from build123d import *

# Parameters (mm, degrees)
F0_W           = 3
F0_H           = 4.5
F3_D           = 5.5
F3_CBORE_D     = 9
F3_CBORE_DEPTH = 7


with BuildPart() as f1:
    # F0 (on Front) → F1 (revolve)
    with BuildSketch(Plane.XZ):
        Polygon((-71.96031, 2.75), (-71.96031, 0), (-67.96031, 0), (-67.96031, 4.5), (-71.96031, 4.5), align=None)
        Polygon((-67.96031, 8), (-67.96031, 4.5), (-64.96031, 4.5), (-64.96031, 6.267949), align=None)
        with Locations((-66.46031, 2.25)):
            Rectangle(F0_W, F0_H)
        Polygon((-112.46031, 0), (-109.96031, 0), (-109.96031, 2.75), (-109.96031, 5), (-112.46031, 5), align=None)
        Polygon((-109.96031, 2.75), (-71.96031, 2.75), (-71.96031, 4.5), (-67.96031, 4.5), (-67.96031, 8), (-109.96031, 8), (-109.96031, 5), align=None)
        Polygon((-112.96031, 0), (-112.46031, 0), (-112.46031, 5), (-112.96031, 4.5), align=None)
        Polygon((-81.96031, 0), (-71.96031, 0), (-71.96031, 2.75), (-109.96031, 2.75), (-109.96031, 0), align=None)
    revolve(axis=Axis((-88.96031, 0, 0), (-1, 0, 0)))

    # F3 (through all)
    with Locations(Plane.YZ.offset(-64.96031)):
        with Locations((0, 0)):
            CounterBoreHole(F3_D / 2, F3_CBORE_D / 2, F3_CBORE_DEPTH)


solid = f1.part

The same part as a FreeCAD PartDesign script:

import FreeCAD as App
import Part
import Sketcher

V = App.Vector
Q = App.Units.Quantity


def add_polygon(sketch, points):
    """Adds a closed chain of lines whose ends are joined by coincident constraints."""
    first, n = sketch.GeometryCount, len(points)
    for a, b in zip(points, points[1:] + points[:1]):
        sketch.addGeometry(Part.LineSegment(App.Vector(*a, 0), App.Vector(*b, 0)), False)
    for i in range(n):
        sketch.addConstraint(Sketcher.Constraint("Coincident", first + i, 2, first + (i + 1) % n, 1))

doc = App.newDocument("Part")
params = doc.addObject("Spreadsheet::Sheet", "Params")
for row, (alias, value) in enumerate([
    ("sketch1_width", "42 mm"),
    ("sketch1_width2", "48 mm"),
    ("sketch1_height", "3 mm"),
    ("sketch1_width3", "2.5 mm"),
    ("sketch1_height2", "4.5 mm"),
    ("revolution_angle", "360 deg"),
    ("sketch2_diameter", "5.5 mm"),
    ("hole_diameter", "5.5 mm"),
    ("hole_cbore_diameter", "9 mm"),
    ("hole_cbore_depth", "7 mm"),
], start=1):
    params.set(f"A{row}", alias)
    params.set(f"B{row}", "=" + value)
    params.setAlias(f"B{row}", alias)

body = doc.addObject("PartDesign::Body", "Body")

sketch1 = doc.addObject("Sketcher::SketchObject", "Sketch")
body.addObject(sketch1)
sketch1.AttachmentSupport = (doc.XZ_Plane, [""])
sketch1.MapMode = "FlatFace"
add_polygon(sketch1, [(-65, 0), (-65, 6.3), (-68, 8), (-110, 8), (-110, 5), (-112.5, 5), (-113, 4.5), (-113, 0)])
sketch1.addConstraint([
    Sketcher.Constraint("Vertical", 0),
    Sketcher.Constraint("Horizontal", 2),
    Sketcher.Constraint("Vertical", 3),
    Sketcher.Constraint("Horizontal", 4),
    Sketcher.Constraint("Vertical", 6),
    Sketcher.Constraint("Horizontal", 7),
    Sketcher.Constraint("PointOnObject", 6, 2, -1),
    Sketcher.Constraint("DistanceX", 2, 2, 2, 1, 42.0),
    Sketcher.Constraint("DistanceX", 7, 1, 7, 2, 48.0),
    Sketcher.Constraint("DistanceY", 3, 2, 3, 1, 3.0),
    Sketcher.Constraint("Angle", 1, Q("149.999997 deg")),
    Sketcher.Constraint("Angle", 5, Q("-135 deg")),
    Sketcher.Constraint("DistanceX", 4, 2, 4, 1, 2.5),
    Sketcher.Constraint("DistanceY", 6, 2, 6, 1, 4.5),
    Sketcher.Constraint("DistanceY", -1, 1, 1, 2, 8.0),
    Sketcher.Constraint("DistanceX", 0, 2, -1, 1, 64.96031),
])
sketch1.setExpression("Constraints[15]", "Params.sketch1_width")
sketch1.setExpression("Constraints[16]", "Params.sketch1_width2")
sketch1.setExpression("Constraints[17]", "Params.sketch1_height")
sketch1.setExpression("Constraints[20]", "Params.sketch1_width3")
sketch1.setExpression("Constraints[21]", "Params.sketch1_height2")
revolution = doc.addObject("PartDesign::Revolution", "Revolution")
body.addObject(revolution)
revolution.Profile = sketch1
revolution.ReferenceAxis = (sketch1, ["H_Axis"])
revolution.setExpression("Angle", "Params.revolution_angle")

sketch2 = doc.addObject("Sketcher::SketchObject", "Sketch001")
body.addObject(sketch2)
sketch2.AttachmentSupport = (doc.YZ_Plane, [""])
sketch2.MapMode = "FlatFace"
sketch2.AttachmentOffset = App.Placement(V(0, 0, -64.96031), App.Rotation())
sketch2.addGeometry(Part.Circle(V(0, 0, 0), V(0, 0, 1), 2.8), False)
sketch2.addConstraint([
    Sketcher.Constraint("Coincident", 0, 3, -1, 1),
    Sketcher.Constraint("Diameter", 0, 5.5),
])
sketch2.setExpression("Constraints[1]", "Params.sketch2_diameter")
doc.recompute()
hole = doc.addObject("PartDesign::Hole", "Hole")
body.addObject(hole)
hole.Profile = sketch2
hole.ThreadType = "None"
hole.setExpression("Diameter", "Params.hole_diameter")
hole.DepthType = "ThroughAll"
hole.HoleCutType = "Counterbore"
hole.setExpression("HoleCutDiameter", "Params.hole_cbore_diameter")
hole.setExpression("HoleCutDepth", "Params.hole_cbore_depth")

doc.recompute()
